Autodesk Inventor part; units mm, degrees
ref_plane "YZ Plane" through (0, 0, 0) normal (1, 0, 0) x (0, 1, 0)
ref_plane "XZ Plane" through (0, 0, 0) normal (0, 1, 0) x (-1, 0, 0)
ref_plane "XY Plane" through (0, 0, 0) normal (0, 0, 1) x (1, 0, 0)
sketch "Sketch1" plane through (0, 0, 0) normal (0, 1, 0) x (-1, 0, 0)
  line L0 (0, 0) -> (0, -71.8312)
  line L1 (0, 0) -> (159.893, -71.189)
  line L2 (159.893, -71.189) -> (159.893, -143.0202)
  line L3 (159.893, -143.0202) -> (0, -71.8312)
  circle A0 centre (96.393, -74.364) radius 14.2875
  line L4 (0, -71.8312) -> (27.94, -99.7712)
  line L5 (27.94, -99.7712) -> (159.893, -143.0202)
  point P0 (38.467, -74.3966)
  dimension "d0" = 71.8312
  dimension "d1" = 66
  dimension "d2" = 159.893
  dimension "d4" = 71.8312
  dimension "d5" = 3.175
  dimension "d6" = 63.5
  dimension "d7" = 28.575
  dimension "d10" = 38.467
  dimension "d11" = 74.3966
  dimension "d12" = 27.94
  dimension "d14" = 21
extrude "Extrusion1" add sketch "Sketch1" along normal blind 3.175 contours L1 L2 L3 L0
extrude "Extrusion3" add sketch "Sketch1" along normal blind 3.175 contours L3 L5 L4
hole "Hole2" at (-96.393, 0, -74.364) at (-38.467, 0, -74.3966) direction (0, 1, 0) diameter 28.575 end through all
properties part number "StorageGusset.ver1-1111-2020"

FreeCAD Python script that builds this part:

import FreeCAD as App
import Part
import Sketcher

V = App.Vector
Q = App.Units.Quantity

doc = App.newDocument("Part")
body = doc.addObject("PartDesign::Body", "Body")

# Sketch on XZ plane
sketch1 = doc.addObject("Sketcher::SketchObject", "Sketch")
body.addObject(sketch1)
sketch1.AttachmentSupport = (doc.XZ_Plane, [""])
sketch1.MapMode = "FlatFace"
sketch1.addGeometry([
    Part.LineSegment(V(-160, -71, 0), V(0, 0, 0)),  # 0
    Part.LineSegment(V(0, 0, 0), V(0, -72, 0)),  # 1
    Part.LineSegment(V(0, -72, 0), V(-160, -143, 0)),  # 2
    Part.LineSegment(V(-160, -143, 0), V(-160, -71, 0)),  # 3
    Part.Circle(V(-96, -74, 0), V(0, 0, 1), 14),  # 4
], False)
sketch1.addConstraint([
    Sketcher.Constraint("Coincident", 0, 2, 1, 1),
    Sketcher.Constraint("Coincident", 1, 2, 2, 1),
    Sketcher.Constraint("Coincident", 2, 2, 3, 1),
    Sketcher.Constraint("Coincident", 3, 2, 0, 1),
    Sketcher.Constraint("Vertical", 1),
    Sketcher.Constraint("Vertical", 3),
    Sketcher.Constraint("Coincident", 0, 2, -1, 1),
    Sketcher.Constraint("Parallel", 0, 2),
    Sketcher.Constraint("Diameter", 4, Q("1.125 in")),
    Sketcher.Constraint("DistanceX", 2, 2, 4, 3, Q("2.5 in")),
    Sketcher.Constraint("DistanceY", 1, 2, 1, 1, Q("2.828 in")),
    Sketcher.Constraint("DistanceX", 2, 2, -1, 1, Q("6.295 in")),
    Sketcher.Constraint("Angle", 0, Q("24 deg")),
    Sketcher.Constraint("DistanceY", 4, 3, 3, 2, Q("0.125 in")),
])
pad1 = doc.addObject("PartDesign::Pad", "Pad")
body.addObject(pad1)
pad1.Profile = sketch1
pad1.Length = Q("0.125 in")
pad1.Reversed = True

# Sketch on XZ plane
sketch2 = doc.addObject("Sketcher::SketchObject", "Sketch001")
body.addObject(sketch2)
sketch2.AttachmentSupport = (doc.XZ_Plane, [""])
sketch2.MapMode = "FlatFace"
sketch2.addGeometry([
    Part.LineSegment(V(-160, -143, 0), V(0, -72, 0)),
    Part.LineSegment(V(0, -72, 0), V(-28, -100, 0)),
    Part.LineSegment(V(-28, -100, 0), V(-160, -143, 0)),
], False)
sketch2.addConstraint([
    Sketcher.Constraint("Coincident", 0, 2, 1, 1),
    Sketcher.Constraint("Coincident", 1, 2, 2, 1),
    Sketcher.Constraint("Coincident", 2, 2, 0, 1),
    Sketcher.Constraint("PointOnObject", 0, 2, -2),
    Sketcher.Constraint("DistanceX", 1, 2, -1, 1, Q("1.1 in")),
    Sketcher.Constraint("DistanceY", 1, 2, 0, 2, Q("1.1 in")),
    Sketcher.Constraint("DistanceY", 0, 2, -1, 1, Q("2.828 in")),
    Sketcher.Constraint("DistanceX", 2, 2, -1, 1, Q("6.295 in")),
    Sketcher.Constraint("Angle", 0, Q("24 deg")),
])
pad2 = doc.addObject("PartDesign::Pad", "Pad001")
body.addObject(pad2)
pad2.Profile = sketch2
pad2.Length = Q("0.125 in")
pad2.Reversed = True

# Sketch on XZ plane
sketch3 = doc.addObject("Sketcher::SketchObject", "Sketch002")
body.addObject(sketch3)
sketch3.AttachmentSupport = (doc.XZ_Plane, [""])
sketch3.MapMode = "FlatFace"
sketch3.addGeometry([
    Part.Circle(V(-96, -74, 0), V(0, 0, 1), 14),
    Part.Circle(V(-38, -74, 0), V(0, 0, 1), 14),
], False)
sketch3.addConstraint([
    Sketcher.Constraint("Equal", 0, 1),
    Sketcher.Constraint("Diameter", 0, Q("1.125 in")),
    Sketcher.Constraint("DistanceX", 0, 3, -1, 1, Q("3.795 in")),
    Sketcher.Constraint("DistanceY", 1, 3, -1, 1, Q("2.929 in")),
    Sketcher.Constraint("DistanceY", 0, 3, -1, 1, 74.364),
    Sketcher.Constraint("DistanceX", 1, 3, -1, 1, 38.467),
])
doc.recompute()
hole = doc.addObject("PartDesign::Hole", "Hole")
body.addObject(hole)
hole.Profile = sketch3
hole.ThreadType = "None"
hole.Diameter = Q("1.125 in")
hole.DepthType = "ThroughAll"

doc.recompute()
